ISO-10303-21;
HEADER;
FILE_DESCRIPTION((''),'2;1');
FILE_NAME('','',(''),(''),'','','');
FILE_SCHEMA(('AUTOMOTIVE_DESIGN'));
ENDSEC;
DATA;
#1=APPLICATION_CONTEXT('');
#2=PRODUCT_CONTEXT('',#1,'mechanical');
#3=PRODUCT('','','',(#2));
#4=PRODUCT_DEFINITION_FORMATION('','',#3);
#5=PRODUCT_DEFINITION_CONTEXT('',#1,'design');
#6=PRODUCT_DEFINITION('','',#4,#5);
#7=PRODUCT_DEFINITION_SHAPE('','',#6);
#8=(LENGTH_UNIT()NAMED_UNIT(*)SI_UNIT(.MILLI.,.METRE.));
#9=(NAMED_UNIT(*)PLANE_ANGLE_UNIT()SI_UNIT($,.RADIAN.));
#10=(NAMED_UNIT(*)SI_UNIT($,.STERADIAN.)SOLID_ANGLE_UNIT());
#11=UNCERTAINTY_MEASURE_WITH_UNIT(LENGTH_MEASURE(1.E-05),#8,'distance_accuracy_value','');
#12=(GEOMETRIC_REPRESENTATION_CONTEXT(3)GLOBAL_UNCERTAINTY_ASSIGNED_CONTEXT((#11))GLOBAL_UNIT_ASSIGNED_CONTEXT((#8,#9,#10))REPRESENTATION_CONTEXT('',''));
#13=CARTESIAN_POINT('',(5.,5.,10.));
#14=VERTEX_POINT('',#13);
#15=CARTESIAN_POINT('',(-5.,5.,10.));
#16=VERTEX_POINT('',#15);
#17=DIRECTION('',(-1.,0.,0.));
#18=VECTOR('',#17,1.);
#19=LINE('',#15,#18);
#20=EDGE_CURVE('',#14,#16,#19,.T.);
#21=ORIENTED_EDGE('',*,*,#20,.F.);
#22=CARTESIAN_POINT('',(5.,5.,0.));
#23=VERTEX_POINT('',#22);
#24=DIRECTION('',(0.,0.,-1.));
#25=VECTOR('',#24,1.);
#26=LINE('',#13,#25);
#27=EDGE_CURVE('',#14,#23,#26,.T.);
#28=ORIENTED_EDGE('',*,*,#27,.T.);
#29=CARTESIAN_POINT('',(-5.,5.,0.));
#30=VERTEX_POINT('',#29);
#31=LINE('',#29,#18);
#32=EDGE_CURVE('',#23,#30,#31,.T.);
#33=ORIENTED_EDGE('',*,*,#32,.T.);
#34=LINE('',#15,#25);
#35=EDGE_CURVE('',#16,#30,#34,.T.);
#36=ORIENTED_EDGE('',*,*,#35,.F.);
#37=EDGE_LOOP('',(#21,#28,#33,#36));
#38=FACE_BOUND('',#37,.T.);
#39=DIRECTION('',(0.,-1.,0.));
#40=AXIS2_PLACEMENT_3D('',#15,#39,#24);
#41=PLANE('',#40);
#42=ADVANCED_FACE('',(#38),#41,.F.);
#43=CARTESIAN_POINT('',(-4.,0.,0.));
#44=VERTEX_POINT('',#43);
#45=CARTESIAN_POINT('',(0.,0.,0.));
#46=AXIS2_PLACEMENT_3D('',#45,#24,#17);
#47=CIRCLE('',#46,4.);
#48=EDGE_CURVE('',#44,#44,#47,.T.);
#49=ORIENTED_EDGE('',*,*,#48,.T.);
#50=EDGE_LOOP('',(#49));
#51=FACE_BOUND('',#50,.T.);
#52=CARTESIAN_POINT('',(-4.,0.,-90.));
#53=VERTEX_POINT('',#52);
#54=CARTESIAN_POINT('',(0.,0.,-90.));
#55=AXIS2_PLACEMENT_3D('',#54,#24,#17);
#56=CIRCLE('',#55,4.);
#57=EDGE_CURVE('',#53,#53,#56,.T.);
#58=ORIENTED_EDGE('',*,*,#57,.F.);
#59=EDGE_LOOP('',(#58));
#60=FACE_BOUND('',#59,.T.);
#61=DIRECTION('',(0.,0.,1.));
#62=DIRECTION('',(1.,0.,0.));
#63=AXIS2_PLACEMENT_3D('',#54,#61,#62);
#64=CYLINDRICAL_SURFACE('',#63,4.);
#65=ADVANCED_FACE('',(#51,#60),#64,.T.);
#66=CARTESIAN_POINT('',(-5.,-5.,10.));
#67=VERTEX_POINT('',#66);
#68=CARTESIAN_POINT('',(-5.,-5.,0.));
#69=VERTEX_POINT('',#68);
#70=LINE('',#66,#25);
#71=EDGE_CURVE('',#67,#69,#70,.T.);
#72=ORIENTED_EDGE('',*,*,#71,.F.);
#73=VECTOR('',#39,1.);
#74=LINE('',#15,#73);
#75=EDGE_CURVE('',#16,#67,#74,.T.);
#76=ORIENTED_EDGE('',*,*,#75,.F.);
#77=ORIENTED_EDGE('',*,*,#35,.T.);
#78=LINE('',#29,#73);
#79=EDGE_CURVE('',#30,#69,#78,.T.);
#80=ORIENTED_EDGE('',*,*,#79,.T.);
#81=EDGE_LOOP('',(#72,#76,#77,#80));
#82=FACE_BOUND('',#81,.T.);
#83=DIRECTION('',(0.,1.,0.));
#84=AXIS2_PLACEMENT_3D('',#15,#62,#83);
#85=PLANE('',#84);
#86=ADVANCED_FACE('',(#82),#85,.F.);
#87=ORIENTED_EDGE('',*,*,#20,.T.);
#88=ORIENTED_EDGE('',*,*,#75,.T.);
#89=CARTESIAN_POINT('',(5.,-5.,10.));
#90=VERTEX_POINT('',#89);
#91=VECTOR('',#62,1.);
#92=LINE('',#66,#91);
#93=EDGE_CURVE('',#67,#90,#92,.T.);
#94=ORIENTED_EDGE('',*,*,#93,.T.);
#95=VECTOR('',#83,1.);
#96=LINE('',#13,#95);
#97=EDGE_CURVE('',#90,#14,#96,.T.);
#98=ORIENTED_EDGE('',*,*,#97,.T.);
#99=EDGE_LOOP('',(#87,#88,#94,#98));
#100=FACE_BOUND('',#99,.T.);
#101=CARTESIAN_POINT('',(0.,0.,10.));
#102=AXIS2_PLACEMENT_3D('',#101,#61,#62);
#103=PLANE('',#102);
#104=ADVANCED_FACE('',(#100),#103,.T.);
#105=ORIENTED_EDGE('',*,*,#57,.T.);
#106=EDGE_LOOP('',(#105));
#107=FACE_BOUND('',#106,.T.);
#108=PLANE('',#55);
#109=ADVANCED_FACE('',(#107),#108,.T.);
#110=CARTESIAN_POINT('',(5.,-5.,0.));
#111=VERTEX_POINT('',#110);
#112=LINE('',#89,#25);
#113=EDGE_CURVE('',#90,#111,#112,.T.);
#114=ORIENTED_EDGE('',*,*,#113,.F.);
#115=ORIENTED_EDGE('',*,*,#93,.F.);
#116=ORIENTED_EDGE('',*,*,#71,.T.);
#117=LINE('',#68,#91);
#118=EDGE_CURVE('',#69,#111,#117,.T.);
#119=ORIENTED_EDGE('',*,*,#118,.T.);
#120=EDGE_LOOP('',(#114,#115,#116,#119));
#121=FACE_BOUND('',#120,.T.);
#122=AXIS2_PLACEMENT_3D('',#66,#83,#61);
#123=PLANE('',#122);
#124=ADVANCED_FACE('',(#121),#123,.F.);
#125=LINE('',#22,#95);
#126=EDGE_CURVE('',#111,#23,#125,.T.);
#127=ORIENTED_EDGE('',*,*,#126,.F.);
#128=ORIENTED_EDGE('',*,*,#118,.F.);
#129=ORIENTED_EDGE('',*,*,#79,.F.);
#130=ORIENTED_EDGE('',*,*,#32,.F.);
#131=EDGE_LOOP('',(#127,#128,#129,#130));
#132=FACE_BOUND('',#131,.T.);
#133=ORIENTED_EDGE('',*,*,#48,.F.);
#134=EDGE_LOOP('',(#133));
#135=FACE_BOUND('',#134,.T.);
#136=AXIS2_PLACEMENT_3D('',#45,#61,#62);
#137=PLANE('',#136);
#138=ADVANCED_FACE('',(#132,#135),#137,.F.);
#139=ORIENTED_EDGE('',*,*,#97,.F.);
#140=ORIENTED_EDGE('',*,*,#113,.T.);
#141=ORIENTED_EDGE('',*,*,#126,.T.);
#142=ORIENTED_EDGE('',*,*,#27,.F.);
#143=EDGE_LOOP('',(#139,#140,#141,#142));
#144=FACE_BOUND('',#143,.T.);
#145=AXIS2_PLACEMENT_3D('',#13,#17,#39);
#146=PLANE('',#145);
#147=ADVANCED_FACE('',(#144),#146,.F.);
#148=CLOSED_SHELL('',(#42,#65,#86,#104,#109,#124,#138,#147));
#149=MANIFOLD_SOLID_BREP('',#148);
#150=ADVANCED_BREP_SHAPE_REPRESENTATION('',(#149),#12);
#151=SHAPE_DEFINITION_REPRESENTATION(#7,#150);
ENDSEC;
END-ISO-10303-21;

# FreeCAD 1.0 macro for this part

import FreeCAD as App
import Part
import Sketcher

V = App.Vector

doc = App.newDocument("Part")
body = doc.addObject("PartDesign::Body", "Body")

sketch1 = body.newObject("Sketcher::SketchObject", "Sketch")
sketch1.AttachmentSupport = (doc.getObject("XY_Plane"), [""])
sketch1.MapMode = "FlatFace"
sketch1.addGeometry(Part.LineSegment(V(-5, 5, 0), V(-5, -5, 0)), False)
sketch1.addGeometry(Part.LineSegment(V(-5, -5, 0), V(5, -5, 0)), False)
sketch1.addGeometry(Part.LineSegment(V(5, -5, 0), V(5, 5, 0)), False)
sketch1.addGeometry(Part.LineSegment(V(5, 5, 0), V(-5, 5, 0)), False)
sketch1.addConstraint(Sketcher.Constraint("Coincident", 0, 2, 1, 1))
sketch1.addConstraint(Sketcher.Constraint("Coincident", 1, 2, 2, 1))
sketch1.addConstraint(Sketcher.Constraint("Coincident", 2, 2, 3, 1))
sketch1.addConstraint(Sketcher.Constraint("Coincident", 3, 2, 0, 1))
sketch1.addConstraint(Sketcher.Constraint("Vertical", 0))
sketch1.addConstraint(Sketcher.Constraint("Horizontal", 1))
sketch1.addConstraint(Sketcher.Constraint("Vertical", 2))
sketch1.addConstraint(Sketcher.Constraint("Horizontal", 3))
sketch1.addConstraint(Sketcher.Constraint("Symmetric", 0, 2, 2, 2, -1, 1))
sketch1.addConstraint(Sketcher.Constraint("Equal", 3, 0))
sketch1.addConstraint(Sketcher.Constraint("DistanceX", 1, 1, 1, 2, 10.0))
pad1 = body.newObject("PartDesign::Pad", "Pad")
pad1.Profile = sketch1
pad1.Length = 10

sketch2 = body.newObject("Sketcher::SketchObject", "Sketch001")
sketch2.AttachmentSupport = (doc.getObject("XY_Plane"), [""])
sketch2.MapMode = "FlatFace"
sketch2.addGeometry(Part.Circle(V(0, 0, 0), V(0, 0, 1), 4), False)
sketch2.addConstraint(Sketcher.Constraint("Coincident", 0, 3, -1, 1))
sketch2.addConstraint(Sketcher.Constraint("Diameter", 0, 8.0))
pad2 = body.newObject("PartDesign::Pad", "Pad001")
pad2.Profile = sketch2
pad2.Length = 90
pad2.Reversed = True

doc.recompute()
